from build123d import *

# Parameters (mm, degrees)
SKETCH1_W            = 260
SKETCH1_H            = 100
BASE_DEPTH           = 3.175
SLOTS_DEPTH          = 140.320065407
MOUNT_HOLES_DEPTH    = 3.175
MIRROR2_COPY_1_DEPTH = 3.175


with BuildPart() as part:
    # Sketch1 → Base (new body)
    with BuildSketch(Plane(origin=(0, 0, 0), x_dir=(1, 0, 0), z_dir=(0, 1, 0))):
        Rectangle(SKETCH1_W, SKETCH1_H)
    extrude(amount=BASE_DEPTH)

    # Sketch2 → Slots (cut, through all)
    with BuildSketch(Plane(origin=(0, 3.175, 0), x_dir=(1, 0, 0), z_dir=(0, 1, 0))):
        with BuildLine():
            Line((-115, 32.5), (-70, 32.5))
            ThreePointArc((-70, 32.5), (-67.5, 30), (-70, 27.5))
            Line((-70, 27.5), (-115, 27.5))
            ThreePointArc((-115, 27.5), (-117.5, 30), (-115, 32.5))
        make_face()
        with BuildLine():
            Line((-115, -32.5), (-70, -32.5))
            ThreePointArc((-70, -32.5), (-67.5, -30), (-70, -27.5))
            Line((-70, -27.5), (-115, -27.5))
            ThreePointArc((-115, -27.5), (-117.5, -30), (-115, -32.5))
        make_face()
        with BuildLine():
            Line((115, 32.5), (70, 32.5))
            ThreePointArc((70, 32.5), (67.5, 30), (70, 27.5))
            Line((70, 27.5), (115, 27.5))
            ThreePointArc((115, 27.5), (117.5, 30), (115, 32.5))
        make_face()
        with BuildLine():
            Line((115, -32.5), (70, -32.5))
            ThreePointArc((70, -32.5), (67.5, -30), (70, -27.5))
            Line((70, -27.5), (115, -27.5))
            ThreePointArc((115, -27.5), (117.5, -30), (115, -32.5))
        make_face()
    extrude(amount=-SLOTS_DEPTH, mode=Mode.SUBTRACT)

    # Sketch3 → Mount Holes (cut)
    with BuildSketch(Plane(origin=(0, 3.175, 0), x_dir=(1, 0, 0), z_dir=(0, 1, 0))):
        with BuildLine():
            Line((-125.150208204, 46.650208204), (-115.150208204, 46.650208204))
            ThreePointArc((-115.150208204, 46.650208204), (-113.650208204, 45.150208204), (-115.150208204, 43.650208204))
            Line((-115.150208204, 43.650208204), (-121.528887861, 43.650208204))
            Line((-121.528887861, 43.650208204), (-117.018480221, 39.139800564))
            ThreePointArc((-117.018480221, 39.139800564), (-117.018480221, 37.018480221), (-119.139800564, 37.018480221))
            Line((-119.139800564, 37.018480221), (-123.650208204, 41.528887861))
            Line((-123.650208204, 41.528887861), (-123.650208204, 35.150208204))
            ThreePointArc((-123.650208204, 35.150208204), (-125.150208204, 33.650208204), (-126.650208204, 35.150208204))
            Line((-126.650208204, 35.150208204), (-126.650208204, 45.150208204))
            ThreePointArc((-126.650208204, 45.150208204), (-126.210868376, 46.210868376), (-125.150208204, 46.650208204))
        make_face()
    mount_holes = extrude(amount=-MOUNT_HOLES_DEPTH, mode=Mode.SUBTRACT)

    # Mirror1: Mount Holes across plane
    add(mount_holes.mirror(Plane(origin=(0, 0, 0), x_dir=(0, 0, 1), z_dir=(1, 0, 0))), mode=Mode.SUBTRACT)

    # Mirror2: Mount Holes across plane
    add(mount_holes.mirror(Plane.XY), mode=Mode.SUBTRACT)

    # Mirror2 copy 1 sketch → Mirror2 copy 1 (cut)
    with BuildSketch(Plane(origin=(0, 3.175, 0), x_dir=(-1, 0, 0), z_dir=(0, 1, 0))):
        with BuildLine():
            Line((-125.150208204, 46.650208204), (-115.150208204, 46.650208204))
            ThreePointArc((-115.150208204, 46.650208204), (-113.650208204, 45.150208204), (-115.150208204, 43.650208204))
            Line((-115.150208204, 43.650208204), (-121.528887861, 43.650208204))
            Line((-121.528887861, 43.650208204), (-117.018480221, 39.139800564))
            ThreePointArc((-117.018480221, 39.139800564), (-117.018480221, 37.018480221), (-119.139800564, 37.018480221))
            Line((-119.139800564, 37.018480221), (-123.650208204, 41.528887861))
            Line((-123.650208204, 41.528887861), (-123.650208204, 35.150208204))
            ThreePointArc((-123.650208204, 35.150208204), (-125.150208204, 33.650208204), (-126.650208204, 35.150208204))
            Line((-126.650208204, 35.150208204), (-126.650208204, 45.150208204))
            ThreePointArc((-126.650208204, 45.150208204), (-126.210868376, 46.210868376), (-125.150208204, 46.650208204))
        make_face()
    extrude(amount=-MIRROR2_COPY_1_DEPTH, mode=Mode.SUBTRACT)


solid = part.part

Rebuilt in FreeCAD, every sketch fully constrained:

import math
import FreeCAD as App
import Part
import Sketcher
from FreeCAD import Vector
Q = App.Units.Quantity


def add_polygon(sketch, points):
    """Adds a closed chain of lines whose ends are joined by coincident constraints."""
    first, n = sketch.GeometryCount, len(points)
    for a, b in zip(points, points[1:] + points[:1]):
        sketch.addGeometry(Part.LineSegment(App.Vector(*a, 0), App.Vector(*b, 0)), False)
    for i in range(n):
        sketch.addConstraint(Sketcher.Constraint("Coincident", first + i, 2, first + (i + 1) % n, 1))

doc = App.newDocument("Part")
body = doc.addObject("PartDesign::Body", "Body")

sketch1 = doc.addObject("Sketcher::SketchObject", "Sketch")
body.addObject(sketch1)
sketch1.AttachmentSupport = (doc.XZ_Plane, [""])
sketch1.MapMode = "FlatFace"
add_polygon(sketch1, [(-130, -50), (-130, 50), (130, 50), (130, -50)])
sketch1.addConstraint([
    Sketcher.Constraint("Vertical", 0),
    Sketcher.Constraint("Horizontal", 1),
    Sketcher.Constraint("Vertical", 2),
    Sketcher.Constraint("Horizontal", 3),
    Sketcher.Constraint("Symmetric", 0, 2, 2, 2, -1, 1),
    Sketcher.Constraint("DistanceX", 1, 1, 1, 2, Q("260 mm")),
    Sketcher.Constraint("DistanceY", 0, 1, 0, 2, Q("100 mm")),
])
pad1 = doc.addObject("PartDesign::Pad", "Pad")
body.addObject(pad1)
pad1.Profile = sketch1
pad1.Length = 3.175
pad1.Reversed = True

sketch2 = doc.addObject("Sketcher::SketchObject", "Sketch001")
body.addObject(sketch2)
sketch2.AttachmentSupport = (doc.XZ_Plane, [""])
sketch2.MapMode = "FlatFace"
sketch2.AttachmentOffset = App.Placement(Vector(0, 0, -3.175), App.Rotation())
sketch2.addGeometry([
    Part.LineSegment(Vector(-70, -32.5, 0), Vector(-115, -32.5, 0)),
    Part.ArcOfCircle(Part.Circle(Vector(-115, -30, 0), Vector(0, 0, 1), 2.5), math.radians(90), math.radians(270)),
    Part.LineSegment(Vector(-115, -27.5, 0), Vector(-70, -27.5, 0)),
    Part.ArcOfCircle(Part.Circle(Vector(-70, -30, 0), Vector(0, 0, 1), 2.5), math.radians(-90), math.radians(90)),
    Part.LineSegment(Vector(-115, 32.5, 0), Vector(-70, 32.5, 0)),
    Part.ArcOfCircle(Part.Circle(Vector(-70, 30, 0), Vector(0, 0, 1), 2.5), math.radians(-90), math.radians(90)),
    Part.LineSegment(Vector(-70, 27.5, 0), Vector(-115, 27.5, 0)),
    Part.ArcOfCircle(Part.Circle(Vector(-115, 30, 0), Vector(0, 0, 1), 2.5), math.radians(90), math.radians(270)),
    Part.LineSegment(Vector(115, -32.5, 0), Vector(70, -32.5, 0)),
    Part.ArcOfCircle(Part.Circle(Vector(70, -30, 0), Vector(0, 0, 1), 2.5), math.radians(90), math.radians(270)),
    Part.LineSegment(Vector(70, -27.5, 0), Vector(115, -27.5, 0)),
    Part.ArcOfCircle(Part.Circle(Vector(115, -30, 0), Vector(0, 0, 1), 2.5), math.radians(-90), math.radians(90)),
    Part.LineSegment(Vector(70, 32.5, 0), Vector(115, 32.5, 0)),
    Part.ArcOfCircle(Part.Circle(Vector(115, 30, 0), Vector(0, 0, 1), 2.5), math.radians(-90), math.radians(90)),
    Part.LineSegment(Vector(115, 27.5, 0), Vector(70, 27.5, 0)),
    Part.ArcOfCircle(Part.Circle(Vector(70, 30, 0), Vector(0, 0, 1), 2.5), math.radians(90), math.radians(270)),
], False)
sketch2.addConstraint([
    Sketcher.Constraint("Tangent", 0, 2, 1, 2),
    Sketcher.Constraint("Tangent", 1, 1, 2, 1),
    Sketcher.Constraint("Tangent", 2, 2, 3, 2),
    Sketcher.Constraint("Tangent", 3, 1, 0, 1),
    Sketcher.Constraint("Tangent", 4, 2, 5, 2),
    Sketcher.Constraint("Tangent", 5, 1, 6, 1),
    Sketcher.Constraint("Tangent", 6, 2, 7, 2),
    Sketcher.Constraint("Tangent", 7, 1, 4, 1),
    Sketcher.Constraint("Tangent", 8, 2, 9, 2),
    Sketcher.Constraint("Tangent", 9, 1, 10, 1),
    Sketcher.Constraint("Tangent", 10, 2, 11, 2),
    Sketcher.Constraint("Tangent", 11, 1, 8, 1),
    Sketcher.Constraint("Tangent", 12, 2, 13, 2),
    Sketcher.Constraint("Tangent", 13, 1, 14, 1),
    Sketcher.Constraint("Tangent", 14, 2, 15, 2),
    Sketcher.Constraint("Tangent", 15, 1, 12, 1),
    Sketcher.Constraint("Horizontal", 0),
    Sketcher.Constraint("Horizontal", 2),
    Sketcher.Constraint("Horizontal", 4),
    Sketcher.Constraint("Horizontal", 6),
    Sketcher.Constraint("Horizontal", 8),
    Sketcher.Constraint("Horizontal", 10),
    Sketcher.Constraint("Horizontal", 12),
    Sketcher.Constraint("Horizontal", 14),
    Sketcher.Constraint("Equal", 3, 5),
    Sketcher.Constraint("Equal", 7, 9),
    Sketcher.Constraint("Equal", 11, 13),
    Sketcher.Constraint("Symmetric", 5, 3, 9, 3, -1, 1),
    Sketcher.Constraint("Symmetric", 1, 3, 13, 3, -1, 1),
    Sketcher.Constraint("Symmetric", 3, 3, 9, 3, -2),
    Sketcher.Constraint("Vertical", 1, 3, 7, 3),
    Sketcher.Constraint("Vertical", 11, 3, 13, 3),
    Sketcher.Constraint("Vertical", 9, 3, 15, 3),
    Sketcher.Constraint("Radius", 1, Q("2.5 mm")),
    Sketcher.Constraint("DistanceX", 0, 2, 0, 1, Q("45 mm")),
    Sketcher.Constraint("DistanceX", 1, 3, -1, 1, Q("115 mm")),
    Sketcher.Constraint("DistanceY", 1, 3, -1, 1, Q("30 mm")),
])
pocket1 = doc.addObject("PartDesign::Pocket", "Pocket")
body.addObject(pocket1)
pocket1.Profile = sketch2
pocket1.Type = "ThroughAll"
pocket1.Reversed = True

sketch3 = doc.addObject("Sketcher::SketchObject", "Sketch002")
body.addObject(sketch3)
sketch3.AttachmentSupport = (doc.XZ_Plane, [""])
sketch3.MapMode = "FlatFace"
sketch3.AttachmentOffset = App.Placement(Vector(0, 0, -3.175), App.Rotation())
sketch3.addGeometry([
    Part.LineSegment(Vector(-115.150208, -46.650208, 0), Vector(-125.150208, -46.650208, 0)),
    Part.ArcOfCircle(Part.Circle(Vector(-125.150208, -45.150208, 0), Vector(0, 0, 1), 1.5), math.radians(180), math.radians(270)),
    Part.LineSegment(Vector(-126.650208, -45.150208, 0), Vector(-126.650208, -35.150208, 0)),
    Part.ArcOfCircle(Part.Circle(Vector(-125.150208, -35.150208, 0), Vector(0, 0, 1), 1.5), math.radians(0), math.radians(180)),
    Part.LineSegment(Vector(-123.650208, -35.150208, 0), Vector(-123.650208, -41.528888, 0)),
    Part.LineSegment(Vector(-123.650208, -41.528888, 0), Vector(-119.139801, -37.01848, 0)),
    Part.ArcOfCircle(Part.Circle(Vector(-118.07914, -38.07914, 0), Vector(0, 0, 1), 1.5), math.radians(-45), math.radians(135)),
    Part.LineSegment(Vector(-117.01848, -39.139801, 0), Vector(-121.528888, -43.650208, 0)),
    Part.LineSegment(Vector(-121.528888, -43.650208, 0), Vector(-115.150208, -43.650208, 0)),
    Part.ArcOfCircle(Part.Circle(Vector(-115.150208, -45.150208, 0), Vector(0, 0, 1), 1.5), math.radians(-90), math.radians(90)),
], False)
sketch3.addConstraint([
    Sketcher.Constraint("Tangent", 0, 2, 1, 2),
    Sketcher.Constraint("Tangent", 1, 1, 2, 1),
    Sketcher.Constraint("Tangent", 2, 2, 3, 2),
    Sketcher.Constraint("Tangent", 3, 1, 4, 1),
    Sketcher.Constraint("Coincident", 4, 2, 5, 1),
    Sketcher.Constraint("Tangent", 5, 2, 6, 2),
    Sketcher.Constraint("Tangent", 6, 1, 7, 1),
    Sketcher.Constraint("Coincident", 7, 2, 8, 1),
    Sketcher.Constraint("Tangent", 8, 2, 9, 2),
    Sketcher.Constraint("Tangent", 9, 1, 0, 1),
    Sketcher.Constraint("Horizontal", 0),
    Sketcher.Constraint("Vertical", 2),
    Sketcher.Constraint("Vertical", 4),
    Sketcher.Constraint("Horizontal", 8),
    Sketcher.Constraint("Equal", 1, 3),
    Sketcher.Constraint("Equal", 3, 6),
    Sketcher.Constraint("Equal", 6, 9),
    Sketcher.Constraint("Parallel", 5, 7),
    Sketcher.Constraint("Equal", 0, 2),
    Sketcher.Constraint("Equal", 8, 4),
    Sketcher.Constraint("Equal", 5, 7),
    Sketcher.Constraint("Radius", 1, Q("1.5 mm")),
    Sketcher.Constraint("DistanceX", 0, 2, 0, 1, Q("10 mm")),
    Sketcher.Constraint("DistanceX", 5, 2, -1, 1, Q("119.139801 mm")),
    Sketcher.Constraint("DistanceY", 6, 1, -1, 1, Q("39.139801 mm")),
    Sketcher.Constraint("Distance", 5, Q("6.37868 mm")),
])
pocket2 = doc.addObject("PartDesign::Pocket", "Pocket001")
body.addObject(pocket2)
pocket2.Profile = sketch3
pocket2.Length = 3.175
pocket2.Reversed = True
doc.recompute()

mirrored = doc.addObject("PartDesign::Mirrored", "Mirrored")
body.addObject(mirrored)
mirrored.Originals = [pocket2]
mirrored.MirrorPlane = (doc.YZ_Plane, [""])
body.Tip = mirrored
doc.recompute()

mirrored2 = doc.addObject("PartDesign::Mirrored", "Mirrored001")
body.addObject(mirrored2)
mirrored2.Originals = [pocket2]
mirrored2.MirrorPlane = (doc.XY_Plane, [""])
body.Tip = mirrored2

sketch4 = doc.addObject("Sketcher::SketchObject", "Sketch003")
body.addObject(sketch4)
sketch4.AttachmentSupport = (doc.XZ_Plane, [""])
sketch4.MapMode = "FlatFace"
sketch4.AttachmentOffset = App.Placement(Vector(0, 0, -3.175), App.Rotation())
sketch4.addGeometry([
    Part.LineSegment(Vector(115.150208, 46.650208, 0), Vector(125.150208, 46.650208, 0)),
    Part.ArcOfCircle(Part.Circle(Vector(125.150208, 45.150208, 0), Vector(0, 0, 1), 1.5), math.radians(0), math.radians(90)),
    Part.LineSegment(Vector(126.650208, 45.150208, 0), Vector(126.650208, 35.150208, 0)),
    Part.ArcOfCircle(Part.Circle(Vector(125.150208, 35.150208, 0), Vector(0, 0, 1), 1.5), math.radians(180), math.radians(360)),
    Part.LineSegment(Vector(123.650208, 35.150208, 0), Vector(123.650208, 41.528888, 0)),
    Part.LineSegment(Vector(123.650208, 41.528888, 0), Vector(119.139801, 37.01848, 0)),
    Part.ArcOfCircle(Part.Circle(Vector(118.07914, 38.07914, 0), Vector(0, 0, 1), 1.5), math.radians(135), math.radians(315)),
    Part.LineSegment(Vector(117.01848, 39.139801, 0), Vector(121.528888, 43.650208, 0)),
    Part.LineSegment(Vector(121.528888, 43.650208, 0), Vector(115.150208, 43.650208, 0)),
    Part.ArcOfCircle(Part.Circle(Vector(115.150208, 45.150208, 0), Vector(0, 0, 1), 1.5), math.radians(90), math.radians(270)),
], False)
sketch4.addConstraint([
    Sketcher.Constraint("Tangent", 0, 2, 1, 2),
    Sketcher.Constraint("Tangent", 1, 1, 2, 1),
    Sketcher.Constraint("Tangent", 2, 2, 3, 2),
    Sketcher.Constraint("Tangent", 3, 1, 4, 1),
    Sketcher.Constraint("Coincident", 4, 2, 5, 1),
    Sketcher.Constraint("Tangent", 5, 2, 6, 2),
    Sketcher.Constraint("Tangent", 6, 1, 7, 1),
    Sketcher.Constraint("Coincident", 7, 2, 8, 1),
    Sketcher.Constraint("Tangent", 8, 2, 9, 2),
    Sketcher.Constraint("Tangent", 9, 1, 0, 1),
    Sketcher.Constraint("Horizontal", 0),
    Sketcher.Constraint("Vertical", 2),
    Sketcher.Constraint("Vertical", 4),
    Sketcher.Constraint("Horizontal", 8),
    Sketcher.Constraint("Equal", 1, 3),
    Sketcher.Constraint("Equal", 3, 6),
    Sketcher.Constraint("Equal", 6, 9),
    Sketcher.Constraint("Parallel", 5, 7),
    Sketcher.Constraint("Equal", 0, 2),
    Sketcher.Constraint("Equal", 8, 4),
    Sketcher.Constraint("Equal", 5, 7),
    Sketcher.Constraint("Radius", 1, Q("1.5 mm")),
    Sketcher.Constraint("DistanceX", 0, 1, 0, 2, Q("10 mm")),
    Sketcher.Constraint("DistanceX", -1, 1, 5, 2, Q("119.139801 mm")),
    Sketcher.Constraint("DistanceY", -1, 1, 6, 1, Q("39.139801 mm")),
    Sketcher.Constraint("Distance", 5, Q("6.37868 mm")),
])
pocket3 = doc.addObject("PartDesign::Pocket", "Pocket002")
body.addObject(pocket3)
pocket3.Profile = sketch4
pocket3.Length = 3.175
pocket3.Reversed = True

doc.recompute()
